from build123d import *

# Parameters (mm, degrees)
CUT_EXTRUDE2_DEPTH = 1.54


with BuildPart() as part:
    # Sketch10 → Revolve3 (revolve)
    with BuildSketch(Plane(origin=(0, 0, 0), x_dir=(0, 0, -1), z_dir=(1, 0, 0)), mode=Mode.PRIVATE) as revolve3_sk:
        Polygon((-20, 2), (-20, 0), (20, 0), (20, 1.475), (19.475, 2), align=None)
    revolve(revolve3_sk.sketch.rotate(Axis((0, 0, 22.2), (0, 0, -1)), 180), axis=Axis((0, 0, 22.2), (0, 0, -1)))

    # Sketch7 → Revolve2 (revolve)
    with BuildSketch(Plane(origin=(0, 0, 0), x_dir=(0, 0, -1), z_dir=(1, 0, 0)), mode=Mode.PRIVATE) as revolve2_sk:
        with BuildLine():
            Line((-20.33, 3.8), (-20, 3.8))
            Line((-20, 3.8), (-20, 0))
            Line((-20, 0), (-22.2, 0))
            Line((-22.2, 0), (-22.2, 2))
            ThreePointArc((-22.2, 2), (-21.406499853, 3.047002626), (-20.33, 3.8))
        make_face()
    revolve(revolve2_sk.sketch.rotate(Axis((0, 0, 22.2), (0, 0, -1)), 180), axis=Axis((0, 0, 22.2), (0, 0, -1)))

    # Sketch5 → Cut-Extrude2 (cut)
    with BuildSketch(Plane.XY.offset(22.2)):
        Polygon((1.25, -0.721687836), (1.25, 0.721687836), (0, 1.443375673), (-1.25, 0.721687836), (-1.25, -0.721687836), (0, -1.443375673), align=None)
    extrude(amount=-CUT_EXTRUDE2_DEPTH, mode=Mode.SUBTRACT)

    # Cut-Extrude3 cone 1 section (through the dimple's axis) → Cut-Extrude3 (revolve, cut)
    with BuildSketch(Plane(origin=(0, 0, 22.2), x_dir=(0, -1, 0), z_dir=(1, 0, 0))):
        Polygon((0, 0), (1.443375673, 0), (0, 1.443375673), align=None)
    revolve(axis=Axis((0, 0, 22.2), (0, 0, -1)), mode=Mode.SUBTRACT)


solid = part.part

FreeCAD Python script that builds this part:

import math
import FreeCAD as App
import Part
import Sketcher
Q = App.Units.Quantity


def add_polygon(sketch, points):
    """Adds a closed chain of lines whose ends are joined by coincident constraints."""
    first, n = sketch.GeometryCount, len(points)
    for a, b in zip(points, points[1:] + points[:1]):
        sketch.addGeometry(Part.LineSegment(App.Vector(*a, 0), App.Vector(*b, 0)), False)
    for i in range(n):
        sketch.addConstraint(Sketcher.Constraint("Coincident", first + i, 2, first + (i + 1) % n, 1))

doc = App.newDocument("Part")
params = doc.addObject("Spreadsheet::Sheet", "Params")
for row, (alias, value) in enumerate([
    ("sketch1_width", "2 mm"),
    ("sketch1_height", "40 mm"),
    ("revolution_angle", "360 deg"),
    ("sketch2_width", "2 mm"),
    ("sketch2_width2", "3.8 mm"),
    ("sketch2_height", "2.2 mm"),
    ("sketch2_height2", "0.33 mm"),
    ("revolution2_angle", "360 deg"),
    ("pocket1_length", "1.54 mm"),
    ("groove_angle", "360 deg"),
], start=1):
    params.set(f"A{row}", alias)
    params.set(f"B{row}", "=" + value)
    params.setAlias(f"B{row}", alias)

body = doc.addObject("PartDesign::Body", "Body")

sketch1 = body.newObject("Sketcher::SketchObject", "Sketch")
sketch1.AttachmentSupport = (doc.getObject("YZ_Plane"), [""])
sketch1.MapMode = "FlatFace"
add_polygon(sketch1, [(2, 20), (0, 20), (0, -20), (1.5, -20), (2, -19.5)])
sketch1.addConstraint([
    Sketcher.Constraint("Horizontal", 0),
    Sketcher.Constraint("Vertical", 1),
    Sketcher.Constraint("Horizontal", 2),
    Sketcher.Constraint("Vertical", 4),
    Sketcher.Constraint("Symmetric", 0, 2, 1, 2, -1, 1),
    Sketcher.Constraint("DistanceX", 0, 2, 0, 1, Q("2 mm")),
    Sketcher.Constraint("DistanceY", 1, 2, 1, 1, Q("40 mm")),
    Sketcher.Constraint("Angle", 3, Q("45 deg")),
    Sketcher.Constraint("DistanceX", 2, 1, 2, 2, Q("1.475 mm")),
])
sketch1.setExpression("Constraints[10]", "Params.sketch1_width")
sketch1.setExpression("Constraints[11]", "Params.sketch1_height")
revolution = body.newObject("PartDesign::Revolution", "Revolution")
revolution.Profile = sketch1
revolution.ReferenceAxis = (sketch1, ["V_Axis"])
revolution.setExpression("Angle", "Params.revolution_angle")

sketch2 = body.newObject("Sketcher::SketchObject", "Sketch001")
sketch2.AttachmentSupport = (doc.getObject("YZ_Plane"), [""])
sketch2.MapMode = "FlatFace"
sketch2.addGeometry([
    Part.LineSegment(App.Vector(3.8, 20, 0), App.Vector(3.8, 20.33, 0)),
    Part.ArcOfCircle(Part.Circle(App.Vector(0, 18.47, 0), App.Vector(0, 0, 1), 4.23), math.radians(26), math.radians(62)),
    Part.LineSegment(App.Vector(2, 22.2, 0), App.Vector(0, 22.2, 0)),
    Part.LineSegment(App.Vector(0, 22.2, 0), App.Vector(0, 20, 0)),
    Part.LineSegment(App.Vector(0, 20, 0), App.Vector(3.8, 20, 0)),
], False)
sketch2.addConstraint([
    Sketcher.Constraint("Coincident", 0, 2, 1, 1),
    Sketcher.Constraint("Coincident", 1, 2, 2, 1),
    Sketcher.Constraint("Coincident", 2, 2, 3, 1),
    Sketcher.Constraint("Coincident", 3, 2, 4, 1),
    Sketcher.Constraint("Coincident", 4, 2, 0, 1),
    Sketcher.Constraint("Vertical", 0),
    Sketcher.Constraint("Horizontal", 2),
    Sketcher.Constraint("Vertical", 3),
    Sketcher.Constraint("Horizontal", 4),
    Sketcher.Constraint("PointOnObject", 1, 3, -2),
    Sketcher.Constraint("PointOnObject", 2, 2, -2),
    Sketcher.Constraint("DistanceX", 2, 2, 2, 1, Q("2 mm")),
    Sketcher.Constraint("DistanceX", 4, 1, 4, 2, Q("3.8 mm")),
    Sketcher.Constraint("DistanceY", 3, 2, 3, 1, Q("2.2 mm")),
    Sketcher.Constraint("DistanceY", -1, 1, 3, 2, Q("20 mm")),
    Sketcher.Constraint("DistanceY", 0, 1, 0, 2, Q("0.33 mm")),
])
sketch2.setExpression("Constraints[11]", "Params.sketch2_width")
sketch2.setExpression("Constraints[12]", "Params.sketch2_width2")
sketch2.setExpression("Constraints[13]", "Params.sketch2_height")
sketch2.setExpression("Constraints[15]", "Params.sketch2_height2")
revolution2 = body.newObject("PartDesign::Revolution", "Revolution001")
revolution2.Profile = sketch2
revolution2.ReferenceAxis = (sketch2, ["V_Axis"])
revolution2.setExpression("Angle", "Params.revolution2_angle")

sketch3 = body.newObject("Sketcher::SketchObject", "Sketch002")
sketch3.AttachmentSupport = (doc.getObject("XY_Plane"), [""])
sketch3.MapMode = "FlatFace"
sketch3.AttachmentOffset = App.Placement(App.Vector(0, 0, 22.2), App.Rotation())
add_polygon(sketch3, [(1.2, -0.7), (1.2, 0.7), (0, 1.4), (-1.2, 0.7), (-1.2, -0.7), (0, -1.4)])
sketch3.addConstraint([
    Sketcher.Constraint("Vertical", 0),
    Sketcher.Constraint("Vertical", 3),
    Sketcher.Constraint("Symmetric", 0, 2, 3, 2, -1, 1),
    Sketcher.Constraint("Symmetric", 1, 2, 4, 2, -1, 1),
    Sketcher.Constraint("PointOnObject", 1, 2, -2),
    Sketcher.Constraint("Parallel", 2, 5),
    Sketcher.Constraint("Horizontal", 0, 2, 2, 2),
    Sketcher.Constraint("Angle", 1, Q("150 deg")),
    Sketcher.Constraint("DistanceX", 2, 2, 0, 2, Q("2.5 mm")),
    Sketcher.Constraint("DistanceY", 0, 1, 0, 2, Q("1.443376 mm")),
])
pocket1 = body.newObject("PartDesign::Pocket", "Pocket")
pocket1.Profile = sketch3
pocket1.setExpression("Length", "Params.pocket1_length")

sketch4 = body.newObject("Sketcher::SketchObject", "Sketch003")
sketch4.AttachmentSupport = (doc.getObject("YZ_Plane"), [""])
sketch4.MapMode = "FlatFace"
add_polygon(sketch4, [(0, 22.2), (-1.4, 22.2), (0, 20.8)])
sketch4.addConstraint([
    Sketcher.Constraint("Horizontal", 0),
    Sketcher.Constraint("Vertical", 2),
    Sketcher.Constraint("PointOnObject", 1, 2, -2),
    Sketcher.Constraint("Equal", 0, 2),
    Sketcher.Constraint("DistanceY", -1, 1, 0, 2, Q("22.2 mm")),
    Sketcher.Constraint("Distance", 1, Q("2.041241 mm")),
])
groove = body.newObject("PartDesign::Groove", "Groove")
groove.Profile = sketch4
groove.ReferenceAxis = (sketch4, ["V_Axis"])
groove.setExpression("Angle", "Params.groove_angle")

doc.recompute()
